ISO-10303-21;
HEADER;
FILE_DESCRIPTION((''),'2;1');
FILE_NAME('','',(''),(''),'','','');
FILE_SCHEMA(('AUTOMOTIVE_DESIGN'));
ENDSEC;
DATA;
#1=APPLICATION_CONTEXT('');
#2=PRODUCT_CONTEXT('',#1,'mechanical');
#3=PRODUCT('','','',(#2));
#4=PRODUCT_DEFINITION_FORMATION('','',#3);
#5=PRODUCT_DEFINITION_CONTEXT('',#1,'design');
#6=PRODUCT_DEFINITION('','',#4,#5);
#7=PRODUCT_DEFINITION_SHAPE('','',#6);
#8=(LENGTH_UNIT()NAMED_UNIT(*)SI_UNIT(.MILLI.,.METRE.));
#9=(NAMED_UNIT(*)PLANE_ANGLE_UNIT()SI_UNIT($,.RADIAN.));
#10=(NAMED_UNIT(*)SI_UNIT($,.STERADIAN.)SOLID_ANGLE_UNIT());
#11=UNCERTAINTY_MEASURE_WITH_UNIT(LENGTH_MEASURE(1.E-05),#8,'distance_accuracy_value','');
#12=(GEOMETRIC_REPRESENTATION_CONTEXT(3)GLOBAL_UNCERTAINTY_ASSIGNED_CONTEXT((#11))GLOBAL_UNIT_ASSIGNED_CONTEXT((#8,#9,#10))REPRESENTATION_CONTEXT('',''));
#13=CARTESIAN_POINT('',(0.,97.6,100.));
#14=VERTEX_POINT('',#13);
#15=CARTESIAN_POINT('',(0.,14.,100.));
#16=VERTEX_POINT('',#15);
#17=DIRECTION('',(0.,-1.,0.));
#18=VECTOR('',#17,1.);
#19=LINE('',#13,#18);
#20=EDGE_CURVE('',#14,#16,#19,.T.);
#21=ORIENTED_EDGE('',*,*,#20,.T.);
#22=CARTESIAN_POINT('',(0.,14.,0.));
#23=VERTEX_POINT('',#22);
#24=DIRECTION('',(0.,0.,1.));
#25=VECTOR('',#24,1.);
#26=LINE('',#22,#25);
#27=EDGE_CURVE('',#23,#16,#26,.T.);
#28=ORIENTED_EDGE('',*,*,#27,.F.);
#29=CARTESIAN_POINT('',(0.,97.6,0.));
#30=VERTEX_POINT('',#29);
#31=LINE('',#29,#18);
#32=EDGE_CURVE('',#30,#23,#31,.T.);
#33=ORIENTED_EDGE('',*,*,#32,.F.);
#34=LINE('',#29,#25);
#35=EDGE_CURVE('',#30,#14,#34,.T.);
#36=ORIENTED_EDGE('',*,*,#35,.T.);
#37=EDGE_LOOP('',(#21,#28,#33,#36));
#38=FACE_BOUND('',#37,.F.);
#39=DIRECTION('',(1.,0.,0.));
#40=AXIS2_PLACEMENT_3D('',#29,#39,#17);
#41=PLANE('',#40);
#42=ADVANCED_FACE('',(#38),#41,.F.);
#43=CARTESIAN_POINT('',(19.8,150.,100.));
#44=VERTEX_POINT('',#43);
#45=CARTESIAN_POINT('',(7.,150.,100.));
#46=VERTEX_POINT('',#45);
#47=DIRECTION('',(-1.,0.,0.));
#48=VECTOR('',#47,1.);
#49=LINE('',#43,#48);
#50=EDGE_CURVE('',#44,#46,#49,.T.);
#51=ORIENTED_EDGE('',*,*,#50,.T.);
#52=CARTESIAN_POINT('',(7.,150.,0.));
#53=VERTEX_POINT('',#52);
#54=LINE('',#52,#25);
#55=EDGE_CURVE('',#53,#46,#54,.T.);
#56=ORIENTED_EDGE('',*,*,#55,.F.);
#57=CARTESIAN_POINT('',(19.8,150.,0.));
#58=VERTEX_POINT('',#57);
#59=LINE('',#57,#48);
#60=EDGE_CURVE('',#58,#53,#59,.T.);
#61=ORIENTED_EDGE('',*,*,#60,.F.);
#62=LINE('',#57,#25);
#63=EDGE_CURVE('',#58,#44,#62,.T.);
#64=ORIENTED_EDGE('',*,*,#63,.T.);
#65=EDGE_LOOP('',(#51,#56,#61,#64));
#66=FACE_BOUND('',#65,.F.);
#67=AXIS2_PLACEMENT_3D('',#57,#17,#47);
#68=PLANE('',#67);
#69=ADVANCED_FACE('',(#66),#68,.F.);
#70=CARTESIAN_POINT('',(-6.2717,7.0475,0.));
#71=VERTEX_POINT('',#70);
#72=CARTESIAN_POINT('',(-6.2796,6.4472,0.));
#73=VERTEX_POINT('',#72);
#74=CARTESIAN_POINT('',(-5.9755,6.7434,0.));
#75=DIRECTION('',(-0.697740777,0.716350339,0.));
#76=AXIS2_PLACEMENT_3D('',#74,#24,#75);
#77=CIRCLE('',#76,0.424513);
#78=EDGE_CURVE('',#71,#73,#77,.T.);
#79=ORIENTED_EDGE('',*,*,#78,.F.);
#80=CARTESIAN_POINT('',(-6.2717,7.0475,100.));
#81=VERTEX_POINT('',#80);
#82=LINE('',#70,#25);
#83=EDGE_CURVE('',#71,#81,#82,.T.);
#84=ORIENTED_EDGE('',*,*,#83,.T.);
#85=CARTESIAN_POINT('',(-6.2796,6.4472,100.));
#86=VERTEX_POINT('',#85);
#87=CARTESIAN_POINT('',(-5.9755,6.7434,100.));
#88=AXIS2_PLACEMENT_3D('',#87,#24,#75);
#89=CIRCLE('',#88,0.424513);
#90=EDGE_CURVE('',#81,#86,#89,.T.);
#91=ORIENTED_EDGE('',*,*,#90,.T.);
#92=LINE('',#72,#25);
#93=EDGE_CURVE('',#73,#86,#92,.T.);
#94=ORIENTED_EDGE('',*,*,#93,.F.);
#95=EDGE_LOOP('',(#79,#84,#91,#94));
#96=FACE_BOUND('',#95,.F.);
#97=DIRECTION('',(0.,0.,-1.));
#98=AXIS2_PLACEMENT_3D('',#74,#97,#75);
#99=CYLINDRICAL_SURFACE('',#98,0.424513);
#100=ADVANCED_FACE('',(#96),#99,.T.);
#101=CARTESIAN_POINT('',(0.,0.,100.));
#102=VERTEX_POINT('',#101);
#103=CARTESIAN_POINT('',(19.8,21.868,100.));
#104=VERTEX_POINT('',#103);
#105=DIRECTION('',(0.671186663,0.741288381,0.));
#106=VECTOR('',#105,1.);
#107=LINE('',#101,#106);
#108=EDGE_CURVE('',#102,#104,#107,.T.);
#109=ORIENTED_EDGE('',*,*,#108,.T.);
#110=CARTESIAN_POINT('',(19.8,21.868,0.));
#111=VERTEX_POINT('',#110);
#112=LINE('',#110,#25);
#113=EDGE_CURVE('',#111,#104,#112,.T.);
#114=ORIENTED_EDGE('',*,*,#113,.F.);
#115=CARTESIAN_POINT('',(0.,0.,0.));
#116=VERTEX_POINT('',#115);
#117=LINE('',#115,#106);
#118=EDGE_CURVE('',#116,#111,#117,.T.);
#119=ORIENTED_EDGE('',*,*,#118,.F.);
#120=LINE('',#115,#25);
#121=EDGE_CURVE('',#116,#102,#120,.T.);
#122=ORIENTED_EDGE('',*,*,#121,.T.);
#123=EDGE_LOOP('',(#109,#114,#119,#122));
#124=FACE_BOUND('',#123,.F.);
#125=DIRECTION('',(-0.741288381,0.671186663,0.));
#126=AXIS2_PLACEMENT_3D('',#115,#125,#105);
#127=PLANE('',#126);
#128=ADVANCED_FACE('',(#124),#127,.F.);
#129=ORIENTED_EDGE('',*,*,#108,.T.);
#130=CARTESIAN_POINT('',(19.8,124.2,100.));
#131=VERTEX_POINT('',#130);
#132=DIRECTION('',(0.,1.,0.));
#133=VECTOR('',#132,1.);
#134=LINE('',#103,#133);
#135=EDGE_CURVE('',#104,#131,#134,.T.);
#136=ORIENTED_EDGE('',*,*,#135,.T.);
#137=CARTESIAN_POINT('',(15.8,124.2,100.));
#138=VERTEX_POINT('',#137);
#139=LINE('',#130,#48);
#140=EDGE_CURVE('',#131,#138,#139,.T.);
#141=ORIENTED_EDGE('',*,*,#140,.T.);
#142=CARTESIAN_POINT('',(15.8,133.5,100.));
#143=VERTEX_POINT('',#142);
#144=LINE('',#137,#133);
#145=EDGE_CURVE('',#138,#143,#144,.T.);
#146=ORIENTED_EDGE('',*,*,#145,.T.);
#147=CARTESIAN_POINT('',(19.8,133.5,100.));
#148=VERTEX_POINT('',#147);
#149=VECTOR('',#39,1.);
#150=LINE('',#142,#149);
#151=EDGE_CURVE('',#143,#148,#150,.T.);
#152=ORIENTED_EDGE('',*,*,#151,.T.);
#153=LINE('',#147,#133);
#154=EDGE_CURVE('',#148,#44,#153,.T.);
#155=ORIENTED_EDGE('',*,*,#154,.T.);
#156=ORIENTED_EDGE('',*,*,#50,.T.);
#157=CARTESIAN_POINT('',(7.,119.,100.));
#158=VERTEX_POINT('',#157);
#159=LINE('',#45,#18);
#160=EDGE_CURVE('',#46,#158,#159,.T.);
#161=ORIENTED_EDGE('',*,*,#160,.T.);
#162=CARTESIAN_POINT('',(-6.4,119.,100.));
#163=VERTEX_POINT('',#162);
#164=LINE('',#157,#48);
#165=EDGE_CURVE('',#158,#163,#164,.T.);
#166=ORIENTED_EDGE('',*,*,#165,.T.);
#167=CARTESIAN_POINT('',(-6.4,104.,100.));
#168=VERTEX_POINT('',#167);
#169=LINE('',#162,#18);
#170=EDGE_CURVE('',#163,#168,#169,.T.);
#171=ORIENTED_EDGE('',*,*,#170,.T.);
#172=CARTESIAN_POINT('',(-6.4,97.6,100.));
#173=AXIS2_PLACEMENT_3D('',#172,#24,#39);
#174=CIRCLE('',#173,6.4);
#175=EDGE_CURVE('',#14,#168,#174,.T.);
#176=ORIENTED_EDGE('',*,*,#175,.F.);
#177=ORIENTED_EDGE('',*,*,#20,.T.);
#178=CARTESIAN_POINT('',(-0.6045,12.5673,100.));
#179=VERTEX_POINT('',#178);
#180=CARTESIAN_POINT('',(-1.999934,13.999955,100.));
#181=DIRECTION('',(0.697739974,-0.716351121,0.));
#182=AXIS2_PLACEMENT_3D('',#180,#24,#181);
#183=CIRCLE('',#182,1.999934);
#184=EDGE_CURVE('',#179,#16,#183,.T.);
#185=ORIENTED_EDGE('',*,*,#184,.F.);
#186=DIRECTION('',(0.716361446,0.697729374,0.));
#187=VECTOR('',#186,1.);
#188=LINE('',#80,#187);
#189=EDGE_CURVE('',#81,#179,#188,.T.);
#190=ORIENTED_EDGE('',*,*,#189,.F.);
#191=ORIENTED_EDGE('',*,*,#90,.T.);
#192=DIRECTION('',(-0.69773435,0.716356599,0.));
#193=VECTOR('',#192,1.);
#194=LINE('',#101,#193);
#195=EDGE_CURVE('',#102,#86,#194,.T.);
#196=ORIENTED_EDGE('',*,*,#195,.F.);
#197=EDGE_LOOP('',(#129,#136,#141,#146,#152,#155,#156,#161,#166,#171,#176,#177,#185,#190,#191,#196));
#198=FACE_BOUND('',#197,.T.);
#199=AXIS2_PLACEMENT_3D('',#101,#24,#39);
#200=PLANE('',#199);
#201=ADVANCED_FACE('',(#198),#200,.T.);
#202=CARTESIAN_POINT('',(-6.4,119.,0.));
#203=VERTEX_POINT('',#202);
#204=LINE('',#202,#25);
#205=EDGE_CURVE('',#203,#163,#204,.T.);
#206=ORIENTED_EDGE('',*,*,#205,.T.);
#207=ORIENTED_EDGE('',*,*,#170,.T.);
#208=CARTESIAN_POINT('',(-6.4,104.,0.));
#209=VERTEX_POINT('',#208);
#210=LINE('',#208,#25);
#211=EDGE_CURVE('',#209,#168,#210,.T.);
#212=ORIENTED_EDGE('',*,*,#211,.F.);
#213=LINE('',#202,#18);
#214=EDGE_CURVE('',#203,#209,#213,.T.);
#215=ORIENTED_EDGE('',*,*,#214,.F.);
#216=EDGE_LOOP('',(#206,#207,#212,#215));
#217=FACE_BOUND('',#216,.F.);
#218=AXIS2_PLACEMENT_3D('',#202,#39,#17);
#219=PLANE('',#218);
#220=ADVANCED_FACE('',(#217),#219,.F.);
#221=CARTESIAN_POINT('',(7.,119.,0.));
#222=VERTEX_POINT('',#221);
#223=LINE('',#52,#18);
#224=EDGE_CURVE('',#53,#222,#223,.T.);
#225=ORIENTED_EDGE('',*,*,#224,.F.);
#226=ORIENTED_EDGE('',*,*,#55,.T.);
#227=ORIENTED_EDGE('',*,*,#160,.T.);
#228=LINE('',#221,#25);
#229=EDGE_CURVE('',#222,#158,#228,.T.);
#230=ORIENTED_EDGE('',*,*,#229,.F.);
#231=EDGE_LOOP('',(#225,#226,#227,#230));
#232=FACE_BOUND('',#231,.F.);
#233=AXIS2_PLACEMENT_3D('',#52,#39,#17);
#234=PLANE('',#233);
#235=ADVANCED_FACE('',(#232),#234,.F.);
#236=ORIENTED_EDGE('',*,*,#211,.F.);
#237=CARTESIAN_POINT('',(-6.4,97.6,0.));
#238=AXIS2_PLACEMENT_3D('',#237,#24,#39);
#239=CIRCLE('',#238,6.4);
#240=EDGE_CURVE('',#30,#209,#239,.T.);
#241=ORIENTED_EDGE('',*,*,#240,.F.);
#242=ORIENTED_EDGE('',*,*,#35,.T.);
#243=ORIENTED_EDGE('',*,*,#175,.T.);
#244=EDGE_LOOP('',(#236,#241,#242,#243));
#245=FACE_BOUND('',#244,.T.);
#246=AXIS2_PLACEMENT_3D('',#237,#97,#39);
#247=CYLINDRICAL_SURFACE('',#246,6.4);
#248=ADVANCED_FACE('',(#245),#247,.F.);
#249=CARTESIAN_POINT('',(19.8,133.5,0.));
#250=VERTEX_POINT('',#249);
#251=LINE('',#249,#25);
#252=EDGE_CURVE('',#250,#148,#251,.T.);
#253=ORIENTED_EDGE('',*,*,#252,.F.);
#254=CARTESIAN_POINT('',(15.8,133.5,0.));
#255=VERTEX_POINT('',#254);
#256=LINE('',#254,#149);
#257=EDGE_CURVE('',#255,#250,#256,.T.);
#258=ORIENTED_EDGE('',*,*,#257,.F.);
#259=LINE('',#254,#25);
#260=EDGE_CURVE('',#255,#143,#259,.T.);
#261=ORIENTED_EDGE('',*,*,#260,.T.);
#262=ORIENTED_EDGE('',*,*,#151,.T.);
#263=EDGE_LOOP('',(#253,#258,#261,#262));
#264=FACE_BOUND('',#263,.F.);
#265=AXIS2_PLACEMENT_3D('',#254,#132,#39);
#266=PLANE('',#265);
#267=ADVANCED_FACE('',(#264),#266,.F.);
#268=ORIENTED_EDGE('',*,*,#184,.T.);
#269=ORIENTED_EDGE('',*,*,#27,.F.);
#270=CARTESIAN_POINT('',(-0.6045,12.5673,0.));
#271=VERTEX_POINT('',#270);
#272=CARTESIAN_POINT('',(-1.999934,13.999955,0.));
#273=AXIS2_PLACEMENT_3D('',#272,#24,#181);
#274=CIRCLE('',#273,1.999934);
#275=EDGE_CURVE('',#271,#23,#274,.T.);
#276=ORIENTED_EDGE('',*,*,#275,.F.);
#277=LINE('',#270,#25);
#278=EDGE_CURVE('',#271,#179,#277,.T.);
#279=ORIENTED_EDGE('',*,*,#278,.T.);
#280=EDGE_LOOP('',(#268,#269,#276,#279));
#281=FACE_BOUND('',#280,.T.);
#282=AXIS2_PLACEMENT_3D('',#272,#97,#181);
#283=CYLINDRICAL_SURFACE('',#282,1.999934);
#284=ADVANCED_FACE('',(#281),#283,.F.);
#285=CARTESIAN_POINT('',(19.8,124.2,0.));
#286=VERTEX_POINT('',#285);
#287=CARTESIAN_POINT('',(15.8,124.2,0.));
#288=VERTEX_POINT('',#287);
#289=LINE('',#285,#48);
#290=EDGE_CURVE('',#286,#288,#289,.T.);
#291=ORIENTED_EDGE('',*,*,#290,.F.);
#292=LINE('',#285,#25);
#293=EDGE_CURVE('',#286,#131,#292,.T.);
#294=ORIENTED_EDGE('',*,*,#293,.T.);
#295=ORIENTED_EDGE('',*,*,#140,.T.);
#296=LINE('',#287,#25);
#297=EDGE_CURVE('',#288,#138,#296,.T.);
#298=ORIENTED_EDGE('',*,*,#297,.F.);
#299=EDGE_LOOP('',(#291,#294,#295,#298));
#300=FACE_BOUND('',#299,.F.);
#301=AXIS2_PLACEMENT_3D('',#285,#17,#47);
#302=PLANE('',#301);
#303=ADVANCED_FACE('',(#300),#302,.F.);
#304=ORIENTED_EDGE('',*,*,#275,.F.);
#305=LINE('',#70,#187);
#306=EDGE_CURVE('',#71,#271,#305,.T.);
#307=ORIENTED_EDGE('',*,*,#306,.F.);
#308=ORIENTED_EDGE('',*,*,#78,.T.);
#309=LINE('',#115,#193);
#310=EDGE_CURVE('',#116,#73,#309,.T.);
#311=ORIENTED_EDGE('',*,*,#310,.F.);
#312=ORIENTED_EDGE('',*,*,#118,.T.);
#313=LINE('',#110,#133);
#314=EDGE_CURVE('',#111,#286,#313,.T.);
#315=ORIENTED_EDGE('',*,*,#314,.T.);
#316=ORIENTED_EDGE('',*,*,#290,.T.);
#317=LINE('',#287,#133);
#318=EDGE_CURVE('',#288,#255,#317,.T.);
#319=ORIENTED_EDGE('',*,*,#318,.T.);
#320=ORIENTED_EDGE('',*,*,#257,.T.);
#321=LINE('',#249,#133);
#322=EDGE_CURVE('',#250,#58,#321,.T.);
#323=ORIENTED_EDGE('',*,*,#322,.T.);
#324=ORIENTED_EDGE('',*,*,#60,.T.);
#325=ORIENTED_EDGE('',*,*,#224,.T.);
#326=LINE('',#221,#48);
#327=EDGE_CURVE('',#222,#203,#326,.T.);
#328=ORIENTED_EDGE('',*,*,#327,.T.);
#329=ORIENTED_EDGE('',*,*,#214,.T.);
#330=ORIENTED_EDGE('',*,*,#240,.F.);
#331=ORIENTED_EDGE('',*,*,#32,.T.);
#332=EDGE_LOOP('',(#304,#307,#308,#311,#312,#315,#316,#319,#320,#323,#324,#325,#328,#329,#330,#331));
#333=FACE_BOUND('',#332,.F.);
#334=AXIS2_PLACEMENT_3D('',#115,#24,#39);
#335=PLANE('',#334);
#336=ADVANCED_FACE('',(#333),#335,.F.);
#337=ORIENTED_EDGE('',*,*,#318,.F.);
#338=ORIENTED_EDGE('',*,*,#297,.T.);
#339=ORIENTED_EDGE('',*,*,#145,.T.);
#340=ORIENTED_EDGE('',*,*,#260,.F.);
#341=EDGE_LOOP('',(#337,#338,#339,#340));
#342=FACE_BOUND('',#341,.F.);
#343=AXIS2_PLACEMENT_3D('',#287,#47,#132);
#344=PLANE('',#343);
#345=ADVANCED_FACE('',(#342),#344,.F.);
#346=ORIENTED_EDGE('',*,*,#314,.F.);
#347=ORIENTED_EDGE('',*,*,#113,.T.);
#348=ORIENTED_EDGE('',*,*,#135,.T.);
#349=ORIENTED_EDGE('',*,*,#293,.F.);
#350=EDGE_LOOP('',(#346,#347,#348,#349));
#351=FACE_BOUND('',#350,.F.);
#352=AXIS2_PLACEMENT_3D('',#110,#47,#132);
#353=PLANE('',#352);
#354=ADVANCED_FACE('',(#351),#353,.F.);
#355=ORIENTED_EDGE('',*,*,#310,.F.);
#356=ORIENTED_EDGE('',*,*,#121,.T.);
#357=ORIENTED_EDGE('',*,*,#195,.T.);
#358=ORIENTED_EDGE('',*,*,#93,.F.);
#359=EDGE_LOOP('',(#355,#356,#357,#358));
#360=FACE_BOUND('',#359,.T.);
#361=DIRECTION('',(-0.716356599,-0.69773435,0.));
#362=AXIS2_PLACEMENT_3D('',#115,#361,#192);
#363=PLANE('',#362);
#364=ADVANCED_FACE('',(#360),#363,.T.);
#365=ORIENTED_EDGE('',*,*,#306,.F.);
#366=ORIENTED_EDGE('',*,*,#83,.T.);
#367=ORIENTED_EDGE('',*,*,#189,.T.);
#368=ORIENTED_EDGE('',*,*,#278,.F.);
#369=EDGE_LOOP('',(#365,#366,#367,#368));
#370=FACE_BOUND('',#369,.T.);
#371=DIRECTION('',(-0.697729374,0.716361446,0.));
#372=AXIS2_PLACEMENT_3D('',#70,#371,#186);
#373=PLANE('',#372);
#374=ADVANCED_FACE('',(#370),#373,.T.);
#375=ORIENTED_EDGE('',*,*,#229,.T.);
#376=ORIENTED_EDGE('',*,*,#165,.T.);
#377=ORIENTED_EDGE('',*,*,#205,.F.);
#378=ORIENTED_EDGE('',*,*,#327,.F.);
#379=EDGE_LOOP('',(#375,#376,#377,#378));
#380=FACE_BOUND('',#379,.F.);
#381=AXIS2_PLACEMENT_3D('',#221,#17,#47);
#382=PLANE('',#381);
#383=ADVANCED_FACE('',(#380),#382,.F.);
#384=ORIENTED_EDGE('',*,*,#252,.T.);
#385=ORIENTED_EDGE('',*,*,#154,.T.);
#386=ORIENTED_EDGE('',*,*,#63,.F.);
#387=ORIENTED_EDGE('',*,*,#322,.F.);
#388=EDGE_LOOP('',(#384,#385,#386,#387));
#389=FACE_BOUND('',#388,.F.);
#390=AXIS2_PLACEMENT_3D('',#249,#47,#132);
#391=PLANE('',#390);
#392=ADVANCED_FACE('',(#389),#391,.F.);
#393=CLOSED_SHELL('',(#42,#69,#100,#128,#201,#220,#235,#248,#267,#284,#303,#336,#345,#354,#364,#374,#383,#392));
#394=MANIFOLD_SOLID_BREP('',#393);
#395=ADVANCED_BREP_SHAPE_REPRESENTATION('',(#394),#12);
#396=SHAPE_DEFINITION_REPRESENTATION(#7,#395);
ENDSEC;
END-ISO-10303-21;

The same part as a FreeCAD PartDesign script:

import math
import FreeCAD as App
import Part
import Sketcher

doc = App.newDocument("Part")
body = doc.addObject("PartDesign::Body", "Body")

# Sketch on XY plane
sketch1 = body.newObject("Sketcher::SketchObject", "Sketch")
sketch1.AttachmentSupport = (doc.getObject("XY_Plane"), [""])
sketch1.MapMode = "FlatFace"
sketch1.addGeometry(Part.LineSegment(App.Vector(-6.28, 6.45, 0), App.Vector(0, 0, 0)), False)
sketch1.addGeometry(Part.LineSegment(App.Vector(0, 0, 0), App.Vector(19.8, 21.87, 0)), False)
sketch1.addGeometry(Part.LineSegment(App.Vector(19.8, 21.87, 0), App.Vector(19.8, 124.2, 0)), False)
sketch1.addGeometry(Part.LineSegment(App.Vector(19.8, 124.2, 0), App.Vector(15.8, 124.2, 0)), False)
sketch1.addGeometry(Part.LineSegment(App.Vector(15.8, 124.2, 0), App.Vector(15.8, 133.5, 0)), False)
sketch1.addGeometry(Part.LineSegment(App.Vector(15.8, 133.5, 0), App.Vector(19.8, 133.5, 0)), False)
sketch1.addGeometry(Part.LineSegment(App.Vector(19.8, 133.5, 0), App.Vector(19.8, 150, 0)), False)
sketch1.addGeometry(Part.LineSegment(App.Vector(19.8, 150, 0), App.Vector(7, 150, 0)), False)
sketch1.addGeometry(Part.LineSegment(App.Vector(7, 150, 0), App.Vector(7, 119, 0)), False)
sketch1.addGeometry(Part.LineSegment(App.Vector(7, 119, 0), App.Vector(-6.4, 119, 0)), False)
sketch1.addGeometry(Part.LineSegment(App.Vector(-6.4, 119, 0), App.Vector(-6.4, 104, 0)), False)
sketch1.addGeometry(Part.ArcOfCircle(Part.Circle(App.Vector(-6.4, 97.6, 0), App.Vector(0, 0, 1), 6.4), math.radians(0), math.radians(90)), False)
sketch1.addGeometry(Part.LineSegment(App.Vector(0, 97.6, 0), App.Vector(0, 14, 0)), False)
sketch1.addGeometry(Part.ArcOfCircle(Part.Circle(App.Vector(-2, 14, 0), App.Vector(0, 0, 1), 2), math.radians(-46), math.radians(0)), False)
sketch1.addGeometry(Part.LineSegment(App.Vector(-0.6, 12.57, 0), App.Vector(-6.27, 7.05, 0)), False)
sketch1.addGeometry(Part.ArcOfCircle(Part.Circle(App.Vector(-5.98, 6.74, 0), App.Vector(0, 0, 1), 0.42), math.radians(134), math.radians(224)), False)
sketch1.addConstraint(Sketcher.Constraint("Coincident", 0, 2, 1, 1))
sketch1.addConstraint(Sketcher.Constraint("Coincident", 1, 2, 2, 1))
sketch1.addConstraint(Sketcher.Constraint("Coincident", 2, 2, 3, 1))
sketch1.addConstraint(Sketcher.Constraint("Coincident", 3, 2, 4, 1))
sketch1.addConstraint(Sketcher.Constraint("Coincident", 4, 2, 5, 1))
sketch1.addConstraint(Sketcher.Constraint("Coincident", 5, 2, 6, 1))
sketch1.addConstraint(Sketcher.Constraint("Coincident", 6, 2, 7, 1))
sketch1.addConstraint(Sketcher.Constraint("Coincident", 7, 2, 8, 1))
sketch1.addConstraint(Sketcher.Constraint("Coincident", 8, 2, 9, 1))
sketch1.addConstraint(Sketcher.Constraint("Coincident", 9, 2, 10, 1))
sketch1.addConstraint(Sketcher.Constraint("Coincident", 10, 2, 11, 2))
sketch1.addConstraint(Sketcher.Constraint("Tangent", 11, 1, 12, 1))
sketch1.addConstraint(Sketcher.Constraint("Tangent", 12, 2, 13, 2))
sketch1.addConstraint(Sketcher.Constraint("Tangent", 13, 1, 14, 1))
sketch1.addConstraint(Sketcher.Constraint("Tangent", 14, 2, 15, 1))
sketch1.addConstraint(Sketcher.Constraint("Tangent", 15, 2, 0, 1))
sketch1.addConstraint(Sketcher.Constraint("Vertical", 2))
sketch1.addConstraint(Sketcher.Constraint("Horizontal", 3))
sketch1.addConstraint(Sketcher.Constraint("Vertical", 4))
sketch1.addConstraint(Sketcher.Constraint("Horizontal", 5))
sketch1.addConstraint(Sketcher.Constraint("Vertical", 6))
sketch1.addConstraint(Sketcher.Constraint("Horizontal", 7))
sketch1.addConstraint(Sketcher.Constraint("Vertical", 8))
sketch1.addConstraint(Sketcher.Constraint("Horizontal", 9))
sketch1.addConstraint(Sketcher.Constraint("Vertical", 10))
sketch1.addConstraint(Sketcher.Constraint("Vertical", 12))
sketch1.addConstraint(Sketcher.Constraint("Coincident", 0, 2, -1, 1))
sketch1.addConstraint(Sketcher.Constraint("PointOnObject", 11, 1, -2))
sketch1.addConstraint(Sketcher.Constraint("Perpendicular", 0, 14))
sketch1.addConstraint(Sketcher.Constraint("Vertical", 2, 2, 5, 2))
sketch1.addConstraint(Sketcher.Constraint("Vertical", 11, 3, 9, 2))
sketch1.addConstraint(Sketcher.Constraint("Radius", 13, 2.0))
sketch1.addConstraint(Sketcher.Constraint("Radius", 11, 6.4))
sketch1.addConstraint(Sketcher.Constraint("DistanceX", 3, 2, 3, 1, 4.0))
sketch1.addConstraint(Sketcher.Constraint("DistanceY", 8, 2, 8, 1, 31.0))
sketch1.addConstraint(Sketcher.Constraint("DistanceY", 10, 2, 10, 1, 15.0))
sketch1.addConstraint(Sketcher.Constraint("Distance", 0, 9.0))
sketch1.addConstraint(Sketcher.Constraint("DistanceX", 7, 2, 7, 1, 12.8))
sketch1.addConstraint(Sketcher.Constraint("DistanceY", 4, 1, 4, 2, 9.3))
sketch1.addConstraint(Sketcher.Constraint("DistanceY", 6, 1, 6, 2, 16.5))
sketch1.addConstraint(Sketcher.Constraint("DistanceY", -1, 1, 13, 3, 14.0))
sketch1.addConstraint(Sketcher.Constraint("DistanceY", -1, 1, 6, 2, 150.0))
sketch1.addConstraint(Sketcher.Constraint("Distance", 1, 29.5))
sketch1.addConstraint(Sketcher.Constraint("DistanceX", -1, 1, 1, 2, 19.8))
sketch1.addConstraint(Sketcher.Constraint("Radius", 15, 0.4245))
pad1 = body.newObject("PartDesign::Pad", "Pad")
pad1.Profile = sketch1
pad1.Length = 100

doc.recompute()
